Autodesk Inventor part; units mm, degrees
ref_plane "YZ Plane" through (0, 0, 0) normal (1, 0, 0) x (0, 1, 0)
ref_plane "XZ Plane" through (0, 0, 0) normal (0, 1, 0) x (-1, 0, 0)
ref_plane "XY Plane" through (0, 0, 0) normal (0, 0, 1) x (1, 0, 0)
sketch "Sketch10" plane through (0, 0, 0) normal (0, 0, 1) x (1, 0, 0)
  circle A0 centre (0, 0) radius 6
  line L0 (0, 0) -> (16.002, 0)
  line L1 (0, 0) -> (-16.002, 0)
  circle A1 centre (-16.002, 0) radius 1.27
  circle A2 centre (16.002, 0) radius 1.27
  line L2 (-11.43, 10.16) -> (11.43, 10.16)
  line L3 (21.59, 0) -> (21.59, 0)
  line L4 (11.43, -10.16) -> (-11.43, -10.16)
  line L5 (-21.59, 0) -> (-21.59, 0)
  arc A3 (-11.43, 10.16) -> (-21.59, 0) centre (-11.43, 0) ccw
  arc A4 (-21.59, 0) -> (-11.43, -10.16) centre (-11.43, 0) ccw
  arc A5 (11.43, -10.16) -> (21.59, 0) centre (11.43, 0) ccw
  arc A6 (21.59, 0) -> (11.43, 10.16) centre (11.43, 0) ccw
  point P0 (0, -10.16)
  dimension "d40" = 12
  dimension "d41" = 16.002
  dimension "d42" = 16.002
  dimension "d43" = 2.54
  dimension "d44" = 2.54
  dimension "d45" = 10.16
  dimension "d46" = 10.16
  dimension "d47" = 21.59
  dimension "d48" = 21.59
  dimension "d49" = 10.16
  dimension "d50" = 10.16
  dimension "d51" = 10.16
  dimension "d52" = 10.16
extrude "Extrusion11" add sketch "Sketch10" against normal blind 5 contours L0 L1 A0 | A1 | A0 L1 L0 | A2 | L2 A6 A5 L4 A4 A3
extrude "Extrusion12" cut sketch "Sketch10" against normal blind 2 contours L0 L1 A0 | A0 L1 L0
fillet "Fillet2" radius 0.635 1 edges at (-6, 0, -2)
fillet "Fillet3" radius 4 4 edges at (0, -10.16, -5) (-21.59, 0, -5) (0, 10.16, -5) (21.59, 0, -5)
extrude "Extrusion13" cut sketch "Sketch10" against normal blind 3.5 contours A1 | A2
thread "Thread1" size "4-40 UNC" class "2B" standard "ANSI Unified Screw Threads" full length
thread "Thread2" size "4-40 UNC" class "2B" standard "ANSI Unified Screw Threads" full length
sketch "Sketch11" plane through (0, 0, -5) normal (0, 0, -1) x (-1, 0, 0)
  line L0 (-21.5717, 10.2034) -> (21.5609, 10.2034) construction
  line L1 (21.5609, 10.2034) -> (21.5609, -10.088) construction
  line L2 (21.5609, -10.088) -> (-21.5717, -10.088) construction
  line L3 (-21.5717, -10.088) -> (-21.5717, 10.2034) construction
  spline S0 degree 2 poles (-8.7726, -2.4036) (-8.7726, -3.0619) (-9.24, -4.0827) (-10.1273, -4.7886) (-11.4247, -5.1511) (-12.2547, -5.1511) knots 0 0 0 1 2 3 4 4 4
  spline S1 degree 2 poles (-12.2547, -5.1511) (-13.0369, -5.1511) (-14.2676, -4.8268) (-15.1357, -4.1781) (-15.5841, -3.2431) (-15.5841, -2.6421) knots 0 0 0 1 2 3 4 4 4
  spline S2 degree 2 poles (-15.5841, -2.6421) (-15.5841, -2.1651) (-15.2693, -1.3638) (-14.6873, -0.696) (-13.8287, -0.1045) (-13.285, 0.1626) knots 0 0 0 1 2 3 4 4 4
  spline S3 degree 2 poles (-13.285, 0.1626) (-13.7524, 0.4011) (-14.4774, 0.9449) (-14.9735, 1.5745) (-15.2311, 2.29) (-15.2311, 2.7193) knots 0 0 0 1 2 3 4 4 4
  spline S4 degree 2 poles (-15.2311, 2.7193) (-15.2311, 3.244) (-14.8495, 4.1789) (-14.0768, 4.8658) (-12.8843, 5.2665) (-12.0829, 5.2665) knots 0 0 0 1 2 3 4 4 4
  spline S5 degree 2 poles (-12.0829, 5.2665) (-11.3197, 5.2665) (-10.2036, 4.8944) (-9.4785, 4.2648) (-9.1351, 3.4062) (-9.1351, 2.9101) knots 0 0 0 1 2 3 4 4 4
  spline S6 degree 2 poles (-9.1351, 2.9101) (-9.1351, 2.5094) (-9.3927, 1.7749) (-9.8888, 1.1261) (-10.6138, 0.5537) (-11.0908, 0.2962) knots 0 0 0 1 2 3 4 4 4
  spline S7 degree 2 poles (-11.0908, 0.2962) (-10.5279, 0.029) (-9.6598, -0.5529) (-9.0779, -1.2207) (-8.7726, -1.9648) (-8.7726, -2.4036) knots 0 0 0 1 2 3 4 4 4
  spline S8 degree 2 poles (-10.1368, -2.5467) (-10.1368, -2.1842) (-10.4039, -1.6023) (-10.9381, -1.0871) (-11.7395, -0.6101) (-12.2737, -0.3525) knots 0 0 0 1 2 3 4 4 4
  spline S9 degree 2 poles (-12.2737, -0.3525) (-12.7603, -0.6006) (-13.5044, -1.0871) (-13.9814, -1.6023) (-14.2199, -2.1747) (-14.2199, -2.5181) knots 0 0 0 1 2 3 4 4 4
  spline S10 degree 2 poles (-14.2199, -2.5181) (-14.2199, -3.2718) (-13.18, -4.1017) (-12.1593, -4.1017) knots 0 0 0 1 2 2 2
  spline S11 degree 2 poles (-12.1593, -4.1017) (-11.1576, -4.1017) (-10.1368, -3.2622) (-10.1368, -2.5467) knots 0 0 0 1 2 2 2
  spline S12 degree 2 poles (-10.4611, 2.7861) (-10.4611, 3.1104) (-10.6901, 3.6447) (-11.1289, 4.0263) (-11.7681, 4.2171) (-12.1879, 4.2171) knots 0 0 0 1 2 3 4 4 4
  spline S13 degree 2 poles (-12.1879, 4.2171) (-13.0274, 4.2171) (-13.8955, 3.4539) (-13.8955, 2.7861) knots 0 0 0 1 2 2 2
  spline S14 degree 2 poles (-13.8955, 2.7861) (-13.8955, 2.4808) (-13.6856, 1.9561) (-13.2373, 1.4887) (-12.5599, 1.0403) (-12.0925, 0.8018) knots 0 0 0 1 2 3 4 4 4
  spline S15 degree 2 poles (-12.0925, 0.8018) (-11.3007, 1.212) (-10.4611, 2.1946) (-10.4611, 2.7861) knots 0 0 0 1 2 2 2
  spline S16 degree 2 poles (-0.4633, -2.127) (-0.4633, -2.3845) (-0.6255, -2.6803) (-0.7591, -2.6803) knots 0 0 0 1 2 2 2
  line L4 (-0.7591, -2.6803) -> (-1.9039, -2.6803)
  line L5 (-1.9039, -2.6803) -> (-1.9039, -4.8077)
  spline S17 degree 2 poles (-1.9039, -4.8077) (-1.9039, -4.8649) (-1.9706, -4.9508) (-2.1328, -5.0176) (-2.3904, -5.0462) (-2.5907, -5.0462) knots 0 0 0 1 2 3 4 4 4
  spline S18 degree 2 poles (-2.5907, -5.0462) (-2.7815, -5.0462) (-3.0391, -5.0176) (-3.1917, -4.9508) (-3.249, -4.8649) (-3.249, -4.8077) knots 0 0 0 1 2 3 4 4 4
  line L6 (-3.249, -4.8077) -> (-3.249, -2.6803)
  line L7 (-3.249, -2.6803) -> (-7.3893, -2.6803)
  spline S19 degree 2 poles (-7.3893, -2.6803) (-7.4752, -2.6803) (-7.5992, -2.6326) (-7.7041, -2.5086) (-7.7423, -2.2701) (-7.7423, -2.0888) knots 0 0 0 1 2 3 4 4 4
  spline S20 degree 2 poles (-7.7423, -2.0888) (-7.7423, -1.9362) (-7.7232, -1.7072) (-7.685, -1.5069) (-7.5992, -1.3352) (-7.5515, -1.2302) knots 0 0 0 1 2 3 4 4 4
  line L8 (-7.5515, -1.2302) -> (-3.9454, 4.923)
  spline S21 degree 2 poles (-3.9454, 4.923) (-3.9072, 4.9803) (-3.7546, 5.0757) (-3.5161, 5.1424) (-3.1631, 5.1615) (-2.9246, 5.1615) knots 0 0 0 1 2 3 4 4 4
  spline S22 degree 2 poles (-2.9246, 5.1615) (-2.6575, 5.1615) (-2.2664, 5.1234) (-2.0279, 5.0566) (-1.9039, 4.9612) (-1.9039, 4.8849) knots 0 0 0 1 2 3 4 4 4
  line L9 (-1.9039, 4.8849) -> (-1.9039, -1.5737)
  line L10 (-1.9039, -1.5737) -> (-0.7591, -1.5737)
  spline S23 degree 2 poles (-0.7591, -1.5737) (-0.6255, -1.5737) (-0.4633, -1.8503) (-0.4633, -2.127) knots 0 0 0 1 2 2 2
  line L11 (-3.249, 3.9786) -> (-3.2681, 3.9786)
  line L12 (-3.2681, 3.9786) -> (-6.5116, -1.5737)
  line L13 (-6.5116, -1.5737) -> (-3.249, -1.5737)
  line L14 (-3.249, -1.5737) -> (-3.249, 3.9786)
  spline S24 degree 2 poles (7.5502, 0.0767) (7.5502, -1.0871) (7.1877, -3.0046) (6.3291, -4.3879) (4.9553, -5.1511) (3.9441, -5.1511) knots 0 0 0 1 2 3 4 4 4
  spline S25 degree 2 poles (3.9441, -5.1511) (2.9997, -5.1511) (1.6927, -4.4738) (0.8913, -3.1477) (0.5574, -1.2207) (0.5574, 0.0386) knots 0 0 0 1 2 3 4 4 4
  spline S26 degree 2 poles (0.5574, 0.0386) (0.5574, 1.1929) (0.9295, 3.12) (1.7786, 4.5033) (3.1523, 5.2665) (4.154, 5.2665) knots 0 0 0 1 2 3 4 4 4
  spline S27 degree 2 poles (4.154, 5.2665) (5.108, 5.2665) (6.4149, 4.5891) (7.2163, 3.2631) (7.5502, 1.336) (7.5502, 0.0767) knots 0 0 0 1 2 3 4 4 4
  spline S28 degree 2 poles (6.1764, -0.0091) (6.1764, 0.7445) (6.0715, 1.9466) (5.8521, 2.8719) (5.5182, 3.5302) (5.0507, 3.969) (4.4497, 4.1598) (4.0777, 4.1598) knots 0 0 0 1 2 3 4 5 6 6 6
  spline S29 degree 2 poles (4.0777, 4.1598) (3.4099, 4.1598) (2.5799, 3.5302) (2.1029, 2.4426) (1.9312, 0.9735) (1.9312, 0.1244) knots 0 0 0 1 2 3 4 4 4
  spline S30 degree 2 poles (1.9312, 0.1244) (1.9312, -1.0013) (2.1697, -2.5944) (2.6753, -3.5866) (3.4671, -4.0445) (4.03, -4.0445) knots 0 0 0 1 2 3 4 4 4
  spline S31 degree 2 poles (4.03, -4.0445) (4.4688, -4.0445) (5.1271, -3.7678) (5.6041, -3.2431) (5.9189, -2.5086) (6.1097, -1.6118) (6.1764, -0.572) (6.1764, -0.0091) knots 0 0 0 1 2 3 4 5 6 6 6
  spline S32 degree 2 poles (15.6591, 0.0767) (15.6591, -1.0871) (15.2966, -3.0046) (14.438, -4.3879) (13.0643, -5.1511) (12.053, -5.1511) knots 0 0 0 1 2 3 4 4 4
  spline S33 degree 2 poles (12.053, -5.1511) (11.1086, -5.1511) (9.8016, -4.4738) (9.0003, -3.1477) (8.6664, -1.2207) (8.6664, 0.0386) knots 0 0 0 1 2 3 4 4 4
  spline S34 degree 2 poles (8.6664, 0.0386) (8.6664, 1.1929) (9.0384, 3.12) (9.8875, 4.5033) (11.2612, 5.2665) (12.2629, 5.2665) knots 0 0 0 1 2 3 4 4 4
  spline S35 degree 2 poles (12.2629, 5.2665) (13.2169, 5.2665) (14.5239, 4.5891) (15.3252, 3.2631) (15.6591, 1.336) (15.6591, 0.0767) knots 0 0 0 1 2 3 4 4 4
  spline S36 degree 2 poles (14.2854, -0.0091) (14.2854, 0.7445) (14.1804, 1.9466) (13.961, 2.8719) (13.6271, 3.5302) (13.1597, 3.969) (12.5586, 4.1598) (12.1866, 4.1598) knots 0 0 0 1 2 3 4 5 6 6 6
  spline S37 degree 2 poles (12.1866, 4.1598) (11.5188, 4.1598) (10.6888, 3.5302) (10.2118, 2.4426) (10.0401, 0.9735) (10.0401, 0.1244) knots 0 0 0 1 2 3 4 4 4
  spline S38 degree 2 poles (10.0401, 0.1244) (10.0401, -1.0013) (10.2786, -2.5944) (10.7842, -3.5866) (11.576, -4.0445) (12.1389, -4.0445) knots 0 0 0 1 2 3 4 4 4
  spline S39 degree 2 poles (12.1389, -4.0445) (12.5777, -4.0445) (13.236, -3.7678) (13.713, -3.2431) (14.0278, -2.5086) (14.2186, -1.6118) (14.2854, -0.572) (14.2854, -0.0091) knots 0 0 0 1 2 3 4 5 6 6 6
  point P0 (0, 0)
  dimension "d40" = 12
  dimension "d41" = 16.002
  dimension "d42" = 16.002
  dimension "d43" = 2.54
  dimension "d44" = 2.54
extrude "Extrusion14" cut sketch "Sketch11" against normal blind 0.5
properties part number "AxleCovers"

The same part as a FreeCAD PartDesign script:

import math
import FreeCAD as App
import Part
import Sketcher


def edges_at(feature, points):
    """Names of the edges that pass closest to the given points."""
    edges = feature.Shape.Edges
    near = lambda p: min(range(len(edges)), key=lambda i: edges[i].distToShape(Part.Vertex(*p))[0])
    return sorted({f"Edge{near(p) + 1}" for p in points})


def add_polygon(sketch, points):
    """Adds a closed chain of lines whose ends are joined by coincident constraints."""
    first, n = sketch.GeometryCount, len(points)
    for a, b in zip(points, points[1:] + points[:1]):
        sketch.addGeometry(Part.LineSegment(App.Vector(*a, 0), App.Vector(*b, 0)), False)
    for i in range(n):
        sketch.addConstraint(Sketcher.Constraint("Coincident", first + i, 2, first + (i + 1) % n, 1))

doc = App.newDocument("Part")
params = doc.addObject("Spreadsheet::Sheet", "Params")
for row, (alias, value) in enumerate([
    ("sketch1_radius", "10.16 mm"),
    ("sketch1_width", "22.86 mm"),
    ("pad1_length", "5 mm"),
    ("sketch2_diameter", "12 mm"),
    ("pocket1_length", "2 mm"),
    ("fillet_radius", "0.635 mm"),
    ("fillet2_radius", "4 mm"),
    ("sketch3_diameter", "2.54 mm"),
    ("pocket2_length", "3.5 mm"),
    ("pocket3_length", "0.5 mm"),
], start=1):
    params.set(f"A{row}", alias)
    params.set(f"B{row}", "=" + value)
    params.setAlias(f"B{row}", alias)

body = doc.addObject("PartDesign::Body", "Body")

# Sketch on XY plane
sketch1 = body.newObject("Sketcher::SketchObject", "Sketch")
sketch1.AttachmentSupport = (doc.getObject("XY_Plane"), [""])
sketch1.MapMode = "FlatFace"
sketch1.addGeometry([
    Part.LineSegment(App.Vector(11, 10, 0), App.Vector(-11, 10, 0)),
    Part.ArcOfCircle(Part.Circle(App.Vector(-11, 0, 0), App.Vector(0, 0, 1), 10), math.radians(90), math.radians(270)),
    Part.LineSegment(App.Vector(-11, -10, 0), App.Vector(11, -10, 0)),
    Part.ArcOfCircle(Part.Circle(App.Vector(11, 0, 0), App.Vector(0, 0, 1), 10), math.radians(-90), math.radians(90)),
], False)
sketch1.addConstraint([
    Sketcher.Constraint("Tangent", 0, 2, 1, 1),
    Sketcher.Constraint("Tangent", 1, 2, 2, 1),
    Sketcher.Constraint("Tangent", 2, 2, 3, 1),
    Sketcher.Constraint("Tangent", 3, 2, 0, 1),
    Sketcher.Constraint("Horizontal", 0),
    Sketcher.Constraint("Horizontal", 2),
    Sketcher.Constraint("Symmetric", 1, 3, 3, 3, -1, 1),
    Sketcher.Constraint("Radius", 1, 10.16),
    Sketcher.Constraint("DistanceX", 0, 2, 0, 1, 22.86),
])
sketch1.setExpression("Constraints[7]", "Params.sketch1_radius")
sketch1.setExpression("Constraints[8]", "Params.sketch1_width")
pad1 = body.newObject("PartDesign::Pad", "Pad")
pad1.Profile = sketch1
pad1.setExpression("Length", "Params.pad1_length")
pad1.Reversed = True

# Sketch on XY plane
sketch2 = body.newObject("Sketcher::SketchObject", "Sketch001")
sketch2.AttachmentSupport = (doc.getObject("XY_Plane"), [""])
sketch2.MapMode = "FlatFace"
sketch2.addGeometry(Part.Circle(App.Vector(0, 0, 0), App.Vector(0, 0, 1), 6), False)
sketch2.addConstraint([
    Sketcher.Constraint("Coincident", 0, 3, -1, 1),
    Sketcher.Constraint("Diameter", 0, 12.0),
])
sketch2.setExpression("Constraints[1]", "Params.sketch2_diameter")
pocket1 = body.newObject("PartDesign::Pocket", "Pocket")
pocket1.Profile = sketch2
pocket1.setExpression("Length", "Params.pocket1_length")
doc.recompute()

fillet = body.newObject("PartDesign::Fillet", "Fillet")
fillet.Base = (pocket1, edges_at(pocket1, [(-6, 0, -2)]))
fillet.setExpression("Radius", "Params.fillet_radius")
doc.recompute()

fillet2 = body.newObject("PartDesign::Fillet", "Fillet001")
fillet2.Base = (fillet, edges_at(fillet, [
    (0, -10.16, -5),
    (-21.59, 0, -5),
    (0, 10.16, -5),
    (21.59, 0, -5),
]))
fillet2.setExpression("Radius", "Params.fillet2_radius")

# Sketch on XY plane
sketch3 = body.newObject("Sketcher::SketchObject", "Sketch002")
sketch3.AttachmentSupport = (doc.getObject("XY_Plane"), [""])
sketch3.MapMode = "FlatFace"
sketch3.addGeometry([
    Part.Circle(App.Vector(-16, 0, 0), App.Vector(0, 0, 1), 1.3),
    Part.Circle(App.Vector(16, 0, 0), App.Vector(0, 0, 1), 1.3),
], False)
sketch3.addConstraint([
    Sketcher.Constraint("Equal", 0, 1),
    Sketcher.Constraint("Symmetric", 0, 3, 1, 3, -1, 1),
    Sketcher.Constraint("PointOnObject", 0, 3, -1),
    Sketcher.Constraint("Diameter", 0, 2.54),
    Sketcher.Constraint("DistanceX", 0, 3, -1, 1, 16.002),
])
sketch3.setExpression("Constraints[3]", "Params.sketch3_diameter")
pocket2 = body.newObject("PartDesign::Pocket", "Pocket001")
pocket2.Profile = sketch3
pocket2.setExpression("Length", "Params.pocket2_length")

# Sketch on XY plane
sketch4 = body.newObject("Sketcher::SketchObject", "Sketch003")
sketch4.AttachmentSupport = (doc.getObject("XY_Plane"), [""])
sketch4.MapMode = "FlatFace"
sketch4.AttachmentOffset = App.Placement(App.Vector(0, 0, -5), App.Rotation())
sketch4.addGeometry(Part.BSplineCurve([App.Vector(8.7726, -2.4036, 0), App.Vector(8.7726, -3.0619, 0), App.Vector(9.24, -4.0827, 0), App.Vector(10.1273, -4.7886, 0), App.Vector(11.4247, -5.1511, 0), App.Vector(12.2547, -5.1511, 0)], [3, 1, 1, 1, 3], [0, 1, 2, 3, 4], False, 2, [1, 1, 1, 1, 1, 1], False), False)  # 0
sketch4.addGeometry(Part.BSplineCurve([App.Vector(11.0908, 0.2962, 0), App.Vector(10.5279, 0.029, 0), App.Vector(9.6598, -0.5529, 0), App.Vector(9.0779, -1.2207, 0), App.Vector(8.7726, -1.9648, 0), App.Vector(8.7726, -2.4036, 0)], [3, 1, 1, 1, 3], [0, 1, 2, 3, 4], False, 2, [1, 1, 1, 1, 1, 1], False), False)  # 1
sketch4.addGeometry(Part.BSplineCurve([App.Vector(9.1351, 2.9101, 0), App.Vector(9.1351, 2.5094, 0), App.Vector(9.3927, 1.7749, 0), App.Vector(9.8888, 1.1261, 0), App.Vector(10.6138, 0.5537, 0), App.Vector(11.0908, 0.2962, 0)], [3, 1, 1, 1, 3], [0, 1, 2, 3, 4], False, 2, [1, 1, 1, 1, 1, 1], False), False)  # 2
sketch4.addGeometry(Part.BSplineCurve([App.Vector(12.0829, 5.2665, 0), App.Vector(11.3197, 5.2665, 0), App.Vector(10.2036, 4.8944, 0), App.Vector(9.4785, 4.2648, 0), App.Vector(9.1351, 3.4062, 0), App.Vector(9.1351, 2.9101, 0)], [3, 1, 1, 1, 3], [0, 1, 2, 3, 4], False, 2, [1, 1, 1, 1, 1, 1], False), False)  # 3
sketch4.addGeometry(Part.BSplineCurve([App.Vector(15.2311, 2.7193, 0), App.Vector(15.2311, 3.244, 0), App.Vector(14.8495, 4.1789, 0), App.Vector(14.0768, 4.8658, 0), App.Vector(12.8843, 5.2665, 0), App.Vector(12.0829, 5.2665, 0)], [3, 1, 1, 1, 3], [0, 1, 2, 3, 4], False, 2, [1, 1, 1, 1, 1, 1], False), False)  # 4
sketch4.addGeometry(Part.BSplineCurve([App.Vector(13.285, 0.1626, 0), App.Vector(13.7524, 0.4011, 0), App.Vector(14.4774, 0.9449, 0), App.Vector(14.9735, 1.5745, 0), App.Vector(15.2311, 2.29, 0), App.Vector(15.2311, 2.7193, 0)], [3, 1, 1, 1, 3], [0, 1, 2, 3, 4], False, 2, [1, 1, 1, 1, 1, 1], False), False)  # 5
sketch4.addGeometry(Part.BSplineCurve([App.Vector(15.5841, -2.6421, 0), App.Vector(15.5841, -2.1651, 0), App.Vector(15.2693, -1.3638, 0), App.Vector(14.6873, -0.696, 0), App.Vector(13.8287, -0.1045, 0), App.Vector(13.285, 0.1626, 0)], [3, 1, 1, 1, 3], [0, 1, 2, 3, 4], False, 2, [1, 1, 1, 1, 1, 1], False), False)  # 6
sketch4.addGeometry(Part.BSplineCurve([App.Vector(12.2547, -5.1511, 0), App.Vector(13.0369, -5.1511, 0), App.Vector(14.2676, -4.8268, 0), App.Vector(15.1357, -4.1781, 0), App.Vector(15.5841, -3.2431, 0), App.Vector(15.5841, -2.6421, 0)], [3, 1, 1, 1, 3], [0, 1, 2, 3, 4], False, 2, [1, 1, 1, 1, 1, 1], False), False)  # 7
sketch4.addGeometry(Part.BSplineCurve([App.Vector(10.1368, -2.5467, 0), App.Vector(10.1368, -2.1842, 0), App.Vector(10.4039, -1.6023, 0), App.Vector(10.9381, -1.0871, 0), App.Vector(11.7395, -0.6101, 0), App.Vector(12.2737, -0.3525, 0)], [3, 1, 1, 1, 3], [0, 1, 2, 3, 4], False, 2, [1, 1, 1, 1, 1, 1], False), False)  # 8
sketch4.addGeometry(Part.BSplineCurve([App.Vector(12.1593, -4.1017, 0), App.Vector(11.1576, -4.1017, 0), App.Vector(10.1368, -3.2622, 0), App.Vector(10.1368, -2.5467, 0)], [3, 1, 3], [0, 1, 2], False, 2, [1, 1, 1, 1], False), False)  # 9
sketch4.addGeometry(Part.BSplineCurve([App.Vector(14.2199, -2.5181, 0), App.Vector(14.2199, -3.2718, 0), App.Vector(13.18, -4.1017, 0), App.Vector(12.1593, -4.1017, 0)], [3, 1, 3], [0, 1, 2], False, 2, [1, 1, 1, 1], False), False)  # 10
sketch4.addGeometry(Part.BSplineCurve([App.Vector(12.2737, -0.3525, 0), App.Vector(12.7603, -0.6006, 0), App.Vector(13.5044, -1.0871, 0), App.Vector(13.9814, -1.6023, 0), App.Vector(14.2199, -2.1747, 0), App.Vector(14.2199, -2.5181, 0)], [3, 1, 1, 1, 3], [0, 1, 2, 3, 4], False, 2, [1, 1, 1, 1, 1, 1], False), False)  # 11
sketch4.addGeometry(Part.BSplineCurve([App.Vector(10.4611, 2.7861, 0), App.Vector(10.4611, 3.1104, 0), App.Vector(10.6901, 3.6447, 0), App.Vector(11.1289, 4.0263, 0), App.Vector(11.7681, 4.2171, 0), App.Vector(12.1879, 4.2171, 0)], [3, 1, 1, 1, 3], [0, 1, 2, 3, 4], False, 2, [1, 1, 1, 1, 1, 1], False), False)  # 12
sketch4.addGeometry(Part.BSplineCurve([App.Vector(12.0925, 0.8018, 0), App.Vector(11.3007, 1.212, 0), App.Vector(10.4611, 2.1946, 0), App.Vector(10.4611, 2.7861, 0)], [3, 1, 3], [0, 1, 2], False, 2, [1, 1, 1, 1], False), False)  # 13
sketch4.addGeometry(Part.BSplineCurve([App.Vector(13.8955, 2.7861, 0), App.Vector(13.8955, 2.4808, 0), App.Vector(13.6856, 1.9561, 0), App.Vector(13.2373, 1.4887, 0), App.Vector(12.5599, 1.0403, 0), App.Vector(12.0925, 0.8018, 0)], [3, 1, 1, 1, 3], [0, 1, 2, 3, 4], False, 2, [1, 1, 1, 1, 1, 1], False), False)  # 14
sketch4.addGeometry(Part.BSplineCurve([App.Vector(12.1879, 4.2171, 0), App.Vector(13.0274, 4.2171, 0), App.Vector(13.8955, 3.4539, 0), App.Vector(13.8955, 2.7861, 0)], [3, 1, 3], [0, 1, 2], False, 2, [1, 1, 1, 1], False), False)  # 15
sketch4.addGeometry(Part.BSplineCurve([App.Vector(0.4633, -2.127, 0), App.Vector(0.4633, -2.3845, 0), App.Vector(0.6255, -2.6803, 0), App.Vector(0.7591, -2.6803, 0)], [3, 1, 3], [0, 1, 2], False, 2, [1, 1, 1, 1], False), False)  # 16
sketch4.addGeometry(Part.BSplineCurve([App.Vector(0.7591, -1.5737, 0), App.Vector(0.6255, -1.5737, 0), App.Vector(0.4633, -1.8503, 0), App.Vector(0.4633, -2.127, 0)], [3, 1, 3], [0, 1, 2], False, 2, [1, 1, 1, 1], False), False)  # 17
sketch4.addGeometry(Part.LineSegment(App.Vector(0.7591, -1.5737, 0), App.Vector(1.9039, -1.5737, 0)), False)  # 18
sketch4.addGeometry(Part.LineSegment(App.Vector(1.9039, -1.5737, 0), App.Vector(1.9039, 4.8849, 0)), False)  # 19
sketch4.addGeometry(Part.BSplineCurve([App.Vector(2.9246, 5.1615, 0), App.Vector(2.6575, 5.1615, 0), App.Vector(2.2664, 5.1234, 0), App.Vector(2.0279, 5.0566, 0), App.Vector(1.9039, 4.9612, 0), App.Vector(1.9039, 4.8849, 0)], [3, 1, 1, 1, 3], [0, 1, 2, 3, 4], False, 2, [1, 1, 1, 1, 1, 1], False), False)  # 20
sketch4.addGeometry(Part.BSplineCurve([App.Vector(3.9454, 4.923, 0), App.Vector(3.9072, 4.9803, 0), App.Vector(3.7546, 5.0757, 0), App.Vector(3.5161, 5.1424, 0), App.Vector(3.1631, 5.1615, 0), App.Vector(2.9246, 5.1615, 0)], [3, 1, 1, 1, 3], [0, 1, 2, 3, 4], False, 2, [1, 1, 1, 1, 1, 1], False), False)  # 21
sketch4.addGeometry(Part.LineSegment(App.Vector(3.9454, 4.923, 0), App.Vector(7.5515, -1.2302, 0)), False)  # 22
sketch4.addGeometry(Part.BSplineCurve([App.Vector(7.7423, -2.0888, 0), App.Vector(7.7423, -1.9362, 0), App.Vector(7.7232, -1.7072, 0), App.Vector(7.685, -1.5069, 0), App.Vector(7.5992, -1.3352, 0), App.Vector(7.5515, -1.2302, 0)], [3, 1, 1, 1, 3], [0, 1, 2, 3, 4], False, 2, [1, 1, 1, 1, 1, 1], False), False)  # 23
sketch4.addGeometry(Part.BSplineCurve([App.Vector(7.3893, -2.6803, 0), App.Vector(7.4752, -2.6803, 0), App.Vector(7.5992, -2.6326, 0), App.Vector(7.7041, -2.5086, 0), App.Vector(7.7423, -2.2701, 0), App.Vector(7.7423, -2.0888, 0)], [3, 1, 1, 1, 3], [0, 1, 2, 3, 4], False, 2, [1, 1, 1, 1, 1, 1], False), False)  # 24
sketch4.addGeometry(Part.LineSegment(App.Vector(7.3893, -2.6803, 0), App.Vector(3.249, -2.6803, 0)), False)  # 25
sketch4.addGeometry(Part.LineSegment(App.Vector(3.249, -2.6803, 0), App.Vector(3.249, -4.8077, 0)), False)  # 26
sketch4.addGeometry(Part.BSplineCurve([App.Vector(2.5907, -5.0462, 0), App.Vector(2.7815, -5.0462, 0), App.Vector(3.0391, -5.0176, 0), App.Vector(3.1917, -4.9508, 0), App.Vector(3.249, -4.8649, 0), App.Vector(3.249, -4.8077, 0)], [3, 1, 1, 1, 3], [0, 1, 2, 3, 4], False, 2, [1, 1, 1, 1, 1, 1], False), False)  # 27
sketch4.addGeometry(Part.BSplineCurve([App.Vector(1.9039, -4.8077, 0), App.Vector(1.9039, -4.8649, 0), App.Vector(1.9706, -4.9508, 0), App.Vector(2.1328, -5.0176, 0), App.Vector(2.3904, -5.0462, 0), App.Vector(2.5907, -5.0462, 0)], [3, 1, 1, 1, 3], [0, 1, 2, 3, 4], False, 2, [1, 1, 1, 1, 1, 1], False), False)  # 28
sketch4.addGeometry(Part.LineSegment(App.Vector(1.9039, -4.8077, 0), App.Vector(1.9039, -2.6803, 0)), False)  # 29
sketch4.addGeometry(Part.LineSegment(App.Vector(1.9039, -2.6803, 0), App.Vector(0.7591, -2.6803, 0)), False)  # 30
add_polygon(sketch4, [(3.2681, 3.9786), (3.249, 3.9786), (3.249, -1.5737), (6.5116, -1.5737)])  # lines 31-34
sketch4.addGeometry(Part.BSplineCurve([App.Vector(-7.5502, 0.0767, 0), App.Vector(-7.5502, -1.0871, 0), App.Vector(-7.1877, -3.0046, 0), App.Vector(-6.3291, -4.3879, 0), App.Vector(-4.9553, -5.1511, 0), App.Vector(-3.9441, -5.1511, 0)], [3, 1, 1, 1, 3], [0, 1, 2, 3, 4], False, 2, [1, 1, 1, 1, 1, 1], False), False)  # 35
sketch4.addGeometry(Part.BSplineCurve([App.Vector(-4.154, 5.2665, 0), App.Vector(-5.108, 5.2665, 0), App.Vector(-6.4149, 4.5891, 0), App.Vector(-7.2163, 3.2631, 0), App.Vector(-7.5502, 1.336, 0), App.Vector(-7.5502, 0.0767, 0)], [3, 1, 1, 1, 3], [0, 1, 2, 3, 4], False, 2, [1, 1, 1, 1, 1, 1], False), False)  # 36
sketch4.addGeometry(Part.BSplineCurve([App.Vector(-0.5574, 0.0386, 0), App.Vector(-0.5574, 1.1929, 0), App.Vector(-0.9295, 3.12, 0), App.Vector(-1.7786, 4.5033, 0), App.Vector(-3.1523, 5.2665, 0), App.Vector(-4.154, 5.2665, 0)], [3, 1, 1, 1, 3], [0, 1, 2, 3, 4], False, 2, [1, 1, 1, 1, 1, 1], False), False)  # 37
sketch4.addGeometry(Part.BSplineCurve([App.Vector(-3.9441, -5.1511, 0), App.Vector(-2.9997, -5.1511, 0), App.Vector(-1.6927, -4.4738, 0), App.Vector(-0.8913, -3.1477, 0), App.Vector(-0.5574, -1.2207, 0), App.Vector(-0.5574, 0.0386, 0)], [3, 1, 1, 1, 3], [0, 1, 2, 3, 4], False, 2, [1, 1, 1, 1, 1, 1], False), False)  # 38
sketch4.addGeometry(Part.BSplineCurve([App.Vector(-6.1764, -0.0091, 0), App.Vector(-6.1764, 0.7445, 0), App.Vector(-6.0715, 1.9466, 0), App.Vector(-5.8521, 2.8719, 0), App.Vector(-5.5182, 3.5302, 0), App.Vector(-5.0507, 3.969, 0), App.Vector(-4.4497, 4.1598, 0), App.Vector(-4.0777, 4.1598, 0)], [3, 1, 1, 1, 1, 1, 3], [0, 1, 2, 3, 4, 5, 6], False, 2, [1, 1, 1, 1, 1, 1, 1, 1], False), False)  # 39
sketch4.addGeometry(Part.BSplineCurve([App.Vector(-4.03, -4.0445, 0), App.Vector(-4.4688, -4.0445, 0), App.Vector(-5.1271, -3.7678, 0), App.Vector(-5.6041, -3.2431, 0), App.Vector(-5.9189, -2.5086, 0), App.Vector(-6.1097, -1.6118, 0), App.Vector(-6.1764, -0.572, 0), App.Vector(-6.1764, -0.0091, 0)], [3, 1, 1, 1, 1, 1, 3], [0, 1, 2, 3, 4, 5, 6], False, 2, [1, 1, 1, 1, 1, 1, 1, 1], False), False)  # 40
sketch4.addGeometry(Part.BSplineCurve([App.Vector(-1.9312, 0.1244, 0), App.Vector(-1.9312, -1.0013, 0), App.Vector(-2.1697, -2.5944, 0), App.Vector(-2.6753, -3.5866, 0), App.Vector(-3.4671, -4.0445, 0), App.Vector(-4.03, -4.0445, 0)], [3, 1, 1, 1, 3], [0, 1, 2, 3, 4], False, 2, [1, 1, 1, 1, 1, 1], False), False)  # 41
sketch4.addGeometry(Part.BSplineCurve([App.Vector(-4.0777, 4.1598, 0), App.Vector(-3.4099, 4.1598, 0), App.Vector(-2.5799, 3.5302, 0), App.Vector(-2.1029, 2.4426, 0), App.Vector(-1.9312, 0.9735, 0), App.Vector(-1.9312, 0.1244, 0)], [3, 1, 1, 1, 3], [0, 1, 2, 3, 4], False, 2, [1, 1, 1, 1, 1, 1], False), False)  # 42
sketch4.addGeometry(Part.BSplineCurve([App.Vector(-15.6591, 0.0767, 0), App.Vector(-15.6591, -1.0871, 0), App.Vector(-15.2966, -3.0046, 0), App.Vector(-14.438, -4.3879, 0), App.Vector(-13.0643, -5.1511, 0), App.Vector(-12.053, -5.1511, 0)], [3, 1, 1, 1, 3], [0, 1, 2, 3, 4], False, 2, [1, 1, 1, 1, 1, 1], False), False)  # 43
sketch4.addGeometry(Part.BSplineCurve([App.Vector(-12.2629, 5.2665, 0), App.Vector(-13.2169, 5.2665, 0), App.Vector(-14.5239, 4.5891, 0), App.Vector(-15.3252, 3.2631, 0), App.Vector(-15.6591, 1.336, 0), App.Vector(-15.6591, 0.0767, 0)], [3, 1, 1, 1, 3], [0, 1, 2, 3, 4], False, 2, [1, 1, 1, 1, 1, 1], False), False)  # 44
sketch4.addGeometry(Part.BSplineCurve([App.Vector(-8.6664, 0.0386, 0), App.Vector(-8.6664, 1.1929, 0), App.Vector(-9.0384, 3.12, 0), App.Vector(-9.8875, 4.5033, 0), App.Vector(-11.2612, 5.2665, 0), App.Vector(-12.2629, 5.2665, 0)], [3, 1, 1, 1, 3], [0, 1, 2, 3, 4], False, 2, [1, 1, 1, 1, 1, 1], False), False)  # 45
sketch4.addGeometry(Part.BSplineCurve([App.Vector(-12.053, -5.1511, 0), App.Vector(-11.1086, -5.1511, 0), App.Vector(-9.8016, -4.4738, 0), App.Vector(-9.0003, -3.1477, 0), App.Vector(-8.6664, -1.2207, 0), App.Vector(-8.6664, 0.0386, 0)], [3, 1, 1, 1, 3], [0, 1, 2, 3, 4], False, 2, [1, 1, 1, 1, 1, 1], False), False)  # 46
sketch4.addGeometry(Part.BSplineCurve([App.Vector(-14.2854, -0.0091, 0), App.Vector(-14.2854, 0.7445, 0), App.Vector(-14.1804, 1.9466, 0), App.Vector(-13.961, 2.8719, 0), App.Vector(-13.6271, 3.5302, 0), App.Vector(-13.1597, 3.969, 0), App.Vector(-12.5586, 4.1598, 0), App.Vector(-12.1866, 4.1598, 0)], [3, 1, 1, 1, 1, 1, 3], [0, 1, 2, 3, 4, 5, 6], False, 2, [1, 1, 1, 1, 1, 1, 1, 1], False), False)  # 47
sketch4.addGeometry(Part.BSplineCurve([App.Vector(-12.1389, -4.0445, 0), App.Vector(-12.5777, -4.0445, 0), App.Vector(-13.236, -3.7678, 0), App.Vector(-13.713, -3.2431, 0), App.Vector(-14.0278, -2.5086, 0), App.Vector(-14.2186, -1.6118, 0), App.Vector(-14.2854, -0.572, 0), App.Vector(-14.2854, -0.0091, 0)], [3, 1, 1, 1, 1, 1, 3], [0, 1, 2, 3, 4, 5, 6], False, 2, [1, 1, 1, 1, 1, 1, 1, 1], False), False)  # 48
sketch4.addGeometry(Part.BSplineCurve([App.Vector(-10.0401, 0.1244, 0), App.Vector(-10.0401, -1.0013, 0), App.Vector(-10.2786, -2.5944, 0), App.Vector(-10.7842, -3.5866, 0), App.Vector(-11.576, -4.0445, 0), App.Vector(-12.1389, -4.0445, 0)], [3, 1, 1, 1, 3], [0, 1, 2, 3, 4], False, 2, [1, 1, 1, 1, 1, 1], False), False)  # 49
sketch4.addGeometry(Part.BSplineCurve([App.Vector(-12.1866, 4.1598, 0), App.Vector(-11.5188, 4.1598, 0), App.Vector(-10.6888, 3.5302, 0), App.Vector(-10.2118, 2.4426, 0), App.Vector(-10.0401, 0.9735, 0), App.Vector(-10.0401, 0.1244, 0)], [3, 1, 1, 1, 3], [0, 1, 2, 3, 4], False, 2, [1, 1, 1, 1, 1, 1], False), False)  # 50
sketch4.addConstraint([
    Sketcher.Constraint("Block", 0),
    Sketcher.Constraint("Block", 1),
    Sketcher.Constraint("Block", 2),
    Sketcher.Constraint("Block", 3),
    Sketcher.Constraint("Block", 4),
    Sketcher.Constraint("Block", 5),
    Sketcher.Constraint("Block", 6),
    Sketcher.Constraint("Block", 7),
    Sketcher.Constraint("Block", 8),
    Sketcher.Constraint("Block", 9),
    Sketcher.Constraint("Block", 10),
    Sketcher.Constraint("Block", 11),
    Sketcher.Constraint("Block", 12),
    Sketcher.Constraint("Block", 13),
    Sketcher.Constraint("Block", 14),
    Sketcher.Constraint("Block", 15),
    Sketcher.Constraint("Block", 16),
    Sketcher.Constraint("Block", 17),
    Sketcher.Constraint("Block", 20),
    Sketcher.Constraint("Block", 21),
    Sketcher.Constraint("Block", 23),
    Sketcher.Constraint("Block", 24),
    Sketcher.Constraint("Block", 27),
    Sketcher.Constraint("Block", 28),
    Sketcher.Constraint("Block", 35),
    Sketcher.Constraint("Block", 36),
    Sketcher.Constraint("Block", 37),
    Sketcher.Constraint("Block", 38),
    Sketcher.Constraint("Block", 39),
    Sketcher.Constraint("Block", 40),
    Sketcher.Constraint("Block", 41),
    Sketcher.Constraint("Block", 42),
    Sketcher.Constraint("Block", 43),
    Sketcher.Constraint("Block", 44),
    Sketcher.Constraint("Block", 45),
    Sketcher.Constraint("Block", 46),
    Sketcher.Constraint("Block", 47),
    Sketcher.Constraint("Block", 48),
    Sketcher.Constraint("Block", 49),
    Sketcher.Constraint("Block", 50),
    Sketcher.Constraint("Coincident", 17, 1, 18, 1),
    Sketcher.Constraint("Coincident", 18, 2, 19, 1),
    Sketcher.Constraint("Coincident", 19, 2, 20, 2),
    Sketcher.Constraint("Coincident", 21, 1, 22, 1),
    Sketcher.Constraint("Coincident", 22, 2, 23, 2),
    Sketcher.Constraint("Coincident", 24, 1, 25, 1),
    Sketcher.Constraint("Coincident", 25, 2, 26, 1),
    Sketcher.Constraint("Coincident", 26, 2, 27, 2),
    Sketcher.Constraint("Coincident", 28, 1, 29, 1),
    Sketcher.Constraint("Coincident", 29, 2, 30, 1),
    Sketcher.Constraint("Coincident", 30, 2, 16, 2),
    Sketcher.Constraint("Horizontal", 18),
    Sketcher.Constraint("Vertical", 19),
    Sketcher.Constraint("Horizontal", 25),
    Sketcher.Constraint("Vertical", 26),
    Sketcher.Constraint("Vertical", 29),
    Sketcher.Constraint("Horizontal", 30),
    Sketcher.Constraint("Horizontal", 31),
    Sketcher.Constraint("Vertical", 32),
    Sketcher.Constraint("Horizontal", 33),
    Sketcher.Constraint("Horizontal", 18, 2, 32, 2),
    Sketcher.Constraint("Vertical", 26, 2, 31, 2),
    Sketcher.Constraint("DistanceX", 31, 2, 31, 1, 0.019),
    Sketcher.Constraint("DistanceX", 33, 2, 22, 2, 1.04),
    Sketcher.Constraint("DistanceY", 32, 2, 32, 1, 5.5523),
])
pocket3 = body.newObject("PartDesign::Pocket", "Pocket002")
pocket3.Profile = sketch4
pocket3.setExpression("Length", "Params.pocket3_length")
pocket3.Reversed = True

doc.recompute()
